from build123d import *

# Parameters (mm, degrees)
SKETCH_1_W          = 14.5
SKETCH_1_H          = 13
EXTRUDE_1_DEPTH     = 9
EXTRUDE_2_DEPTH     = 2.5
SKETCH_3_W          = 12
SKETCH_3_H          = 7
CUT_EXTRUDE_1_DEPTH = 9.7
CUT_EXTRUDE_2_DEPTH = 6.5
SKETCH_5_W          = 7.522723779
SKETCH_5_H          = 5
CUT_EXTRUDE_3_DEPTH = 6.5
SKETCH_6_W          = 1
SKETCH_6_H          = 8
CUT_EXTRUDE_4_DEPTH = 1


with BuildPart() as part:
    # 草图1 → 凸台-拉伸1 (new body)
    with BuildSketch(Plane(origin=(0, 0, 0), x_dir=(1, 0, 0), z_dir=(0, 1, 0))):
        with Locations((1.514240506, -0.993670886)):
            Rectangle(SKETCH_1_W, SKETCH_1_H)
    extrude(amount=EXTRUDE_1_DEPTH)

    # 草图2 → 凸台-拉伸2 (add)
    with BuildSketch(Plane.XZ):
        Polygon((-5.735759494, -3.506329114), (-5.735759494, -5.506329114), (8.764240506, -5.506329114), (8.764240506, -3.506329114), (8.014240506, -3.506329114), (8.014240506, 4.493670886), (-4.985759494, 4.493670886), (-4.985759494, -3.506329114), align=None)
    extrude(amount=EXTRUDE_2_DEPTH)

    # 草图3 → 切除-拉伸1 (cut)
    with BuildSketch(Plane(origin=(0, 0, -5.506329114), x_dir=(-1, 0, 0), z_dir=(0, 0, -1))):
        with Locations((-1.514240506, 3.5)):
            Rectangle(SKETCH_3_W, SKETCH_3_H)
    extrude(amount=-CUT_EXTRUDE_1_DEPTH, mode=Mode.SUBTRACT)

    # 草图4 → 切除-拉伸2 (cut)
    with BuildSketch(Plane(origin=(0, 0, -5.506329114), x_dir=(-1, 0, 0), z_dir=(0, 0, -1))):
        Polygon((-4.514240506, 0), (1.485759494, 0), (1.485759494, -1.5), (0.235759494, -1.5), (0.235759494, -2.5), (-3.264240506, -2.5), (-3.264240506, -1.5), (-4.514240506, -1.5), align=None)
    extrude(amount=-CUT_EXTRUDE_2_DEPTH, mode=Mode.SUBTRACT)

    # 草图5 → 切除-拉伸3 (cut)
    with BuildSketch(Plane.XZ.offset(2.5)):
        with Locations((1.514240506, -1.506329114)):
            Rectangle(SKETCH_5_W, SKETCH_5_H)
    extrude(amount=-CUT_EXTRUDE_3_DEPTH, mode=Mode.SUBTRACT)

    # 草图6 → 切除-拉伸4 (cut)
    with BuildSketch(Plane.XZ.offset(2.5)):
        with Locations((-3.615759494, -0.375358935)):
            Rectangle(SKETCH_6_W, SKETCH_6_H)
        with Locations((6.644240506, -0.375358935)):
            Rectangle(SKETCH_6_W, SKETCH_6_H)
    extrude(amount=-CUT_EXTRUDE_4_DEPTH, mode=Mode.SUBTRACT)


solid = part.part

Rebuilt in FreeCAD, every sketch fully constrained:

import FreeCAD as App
import Part
import Sketcher

V = App.Vector
Q = App.Units.Quantity


def add_polygon(sketch, points):
    """Adds a closed chain of lines whose ends are joined by coincident constraints."""
    first, n = sketch.GeometryCount, len(points)
    for a, b in zip(points, points[1:] + points[:1]):
        sketch.addGeometry(Part.LineSegment(App.Vector(*a, 0), App.Vector(*b, 0)), False)
    for i in range(n):
        sketch.addConstraint(Sketcher.Constraint("Coincident", first + i, 2, first + (i + 1) % n, 1))

doc = App.newDocument("Part")
params = doc.addObject("Spreadsheet::Sheet", "Params")
for row, (alias, value) in enumerate([
    ("sketch1_height", "13 mm"),
    ("sketch1_width", "14.5 mm"),
    ("pad1_length", "9 mm"),
    ("sketch2_width", "13 mm"),
    ("sketch2_height", "2 mm"),
    ("sketch2_height2", "8 mm"),
    ("sketch2_width2", "14.5 mm"),
    ("pad2_length", "2.5 mm"),
    ("sketch3_width", "12 mm"),
    ("sketch3_height", "7 mm"),
    ("pocket1_length", "9.7 mm"),
    ("sketch4_width", "6 mm"),
    ("sketch4_height", "1 mm"),
    ("sketch4_width2", "3.5 mm"),
    ("sketch4_height2", "1.5 mm"),
    ("pocket2_length", "6.5 mm"),
    ("sketch5_height", "5 mm"),
    ("pocket3_length", "6.5 mm"),
    ("sketch6_width", "1 mm"),
    ("sketch6_height", "8 mm"),
    ("pocket4_length", "1 mm"),
], start=1):
    params.set(f"A{row}", alias)
    params.set(f"B{row}", "=" + value)
    params.setAlias(f"B{row}", alias)

body = doc.addObject("PartDesign::Body", "Body")

# Sketch on XZ plane
sketch1 = doc.addObject("Sketcher::SketchObject", "Sketch")
body.addObject(sketch1)
sketch1.AttachmentSupport = (doc.XZ_Plane, [""])
sketch1.MapMode = "FlatFace"
add_polygon(sketch1, [(-6, -6), (-6, 7), (9, 7), (9, -6)])  # lines 0-3
sketch1.addConstraint([
    Sketcher.Constraint("Vertical", 0),
    Sketcher.Constraint("Horizontal", 1),
    Sketcher.Constraint("Vertical", 2),
    Sketcher.Constraint("Horizontal", 3),
    Sketcher.Constraint("DistanceY", 0, 1, 0, 2, Q("13 mm")),
    Sketcher.Constraint("DistanceX", 1, 1, 1, 2, Q("14.5 mm")),
    Sketcher.Constraint("DistanceX", 0, 2, -1, 1, Q("5.735759 mm")),
    Sketcher.Constraint("DistanceY", -1, 1, 0, 2, Q("7.493671 mm")),
])
sketch1.setExpression("Constraints[8]", "Params.sketch1_height")
sketch1.setExpression("Constraints[9]", "Params.sketch1_width")
pad1 = doc.addObject("PartDesign::Pad", "Pad")
body.addObject(pad1)
pad1.Profile = sketch1
pad1.setExpression("Length", "Params.pad1_length")
pad1.Reversed = True

# Sketch on XZ plane
sketch2 = doc.addObject("Sketcher::SketchObject", "Sketch001")
body.addObject(sketch2)
sketch2.AttachmentSupport = (doc.XZ_Plane, [""])
sketch2.MapMode = "FlatFace"
add_polygon(sketch2, [(-5.7, -3.5), (-5.7, -5.5), (8.8, -5.5), (8.8, -3.5), (8, -3.5), (8, 4.5), (-5, 4.5), (-5, -3.5)])  # lines 0-7
sketch2.addConstraint([
    Sketcher.Constraint("Vertical", 0),
    Sketcher.Constraint("Horizontal", 1),
    Sketcher.Constraint("Vertical", 2),
    Sketcher.Constraint("Horizontal", 3),
    Sketcher.Constraint("Vertical", 4),
    Sketcher.Constraint("Horizontal", 5),
    Sketcher.Constraint("Vertical", 6),
    Sketcher.Constraint("Horizontal", 7),
    Sketcher.Constraint("Horizontal", 3, 2, 6, 2),
    Sketcher.Constraint("Equal", 3, 7),
    Sketcher.Constraint("DistanceX", 5, 2, 5, 1, Q("13 mm")),
    Sketcher.Constraint("DistanceY", 0, 2, 0, 1, Q("2 mm")),
    Sketcher.Constraint("DistanceY", 4, 1, 4, 2, Q("8 mm")),
    Sketcher.Constraint("DistanceX", 1, 1, 1, 2, Q("14.5 mm")),
    Sketcher.Constraint("DistanceX", 0, 2, -1, 1, Q("5.735759 mm")),
    Sketcher.Constraint("DistanceY", 0, 2, -1, 1, Q("5.506329 mm")),
])
sketch2.setExpression("Constraints[18]", "Params.sketch2_width")
sketch2.setExpression("Constraints[19]", "Params.sketch2_height")
sketch2.setExpression("Constraints[20]", "Params.sketch2_height2")
sketch2.setExpression("Constraints[21]", "Params.sketch2_width2")
pad2 = doc.addObject("PartDesign::Pad", "Pad001")
body.addObject(pad2)
pad2.Profile = sketch2
pad2.setExpression("Length", "Params.pad2_length")

# Sketch on XY plane
sketch3 = doc.addObject("Sketcher::SketchObject", "Sketch002")
body.addObject(sketch3)
sketch3.AttachmentSupport = (doc.XY_Plane, [""])
sketch3.MapMode = "FlatFace"
sketch3.AttachmentOffset = App.Placement(V(0, 0, -5.506329), App.Rotation())
add_polygon(sketch3, [(8, 7), (8, 0), (-4, 0), (-4, 7)])  # lines 0-3
sketch3.addConstraint([
    Sketcher.Constraint("Vertical", 0),
    Sketcher.Constraint("Horizontal", 1),
    Sketcher.Constraint("Vertical", 2),
    Sketcher.Constraint("Horizontal", 3),
    Sketcher.Constraint("PointOnObject", 0, 2, -1),
    Sketcher.Constraint("DistanceX", 1, 2, 1, 1, Q("12 mm")),
    Sketcher.Constraint("DistanceY", 0, 2, 0, 1, Q("7 mm")),
    Sketcher.Constraint("DistanceX", -1, 1, 0, 2, Q("7.514241 mm")),
])
sketch3.setExpression("Constraints[9]", "Params.sketch3_width")
sketch3.setExpression("Constraints[10]", "Params.sketch3_height")
pocket1 = doc.addObject("PartDesign::Pocket", "Pocket")
body.addObject(pocket1)
pocket1.Profile = sketch3
pocket1.setExpression("Length", "Params.pocket1_length")
pocket1.Reversed = True

# Sketch on XY plane
sketch4 = doc.addObject("Sketcher::SketchObject", "Sketch003")
body.addObject(sketch4)
sketch4.AttachmentSupport = (doc.XY_Plane, [""])
sketch4.MapMode = "FlatFace"
sketch4.AttachmentOffset = App.Placement(V(0, 0, -5.506329), App.Rotation())
add_polygon(sketch4, [(-1.5, 0), (4.5, 0), (4.5, -1.5), (3.3, -1.5), (3.3, -2.5), (-0.2, -2.5), (-0.2, -1.5), (-1.5, -1.5)])  # lines 0-7
sketch4.addConstraint([
    Sketcher.Constraint("Horizontal", 0),
    Sketcher.Constraint("Vertical", 1),
    Sketcher.Constraint("Horizontal", 2),
    Sketcher.Constraint("Vertical", 3),
    Sketcher.Constraint("Horizontal", 4),
    Sketcher.Constraint("Vertical", 5),
    Sketcher.Constraint("Horizontal", 6),
    Sketcher.Constraint("Vertical", 7),
    Sketcher.Constraint("PointOnObject", 0, 2, -1),
    Sketcher.Constraint("Horizontal", 2, 2, 5, 2),
    Sketcher.Constraint("Equal", 2, 6),
    Sketcher.Constraint("DistanceX", 0, 1, 0, 2, Q("6 mm")),
    Sketcher.Constraint("DistanceY", 3, 2, 3, 1, Q("1 mm")),
    Sketcher.Constraint("DistanceX", 4, 2, 4, 1, Q("3.5 mm")),
    Sketcher.Constraint("DistanceY", 1, 2, 1, 1, Q("1.5 mm")),
    Sketcher.Constraint("DistanceX", -1, 1, 0, 2, Q("4.514241 mm")),
])
sketch4.setExpression("Constraints[19]", "Params.sketch4_width")
sketch4.setExpression("Constraints[20]", "Params.sketch4_height")
sketch4.setExpression("Constraints[21]", "Params.sketch4_width2")
sketch4.setExpression("Constraints[22]", "Params.sketch4_height2")
pocket2 = doc.addObject("PartDesign::Pocket", "Pocket001")
body.addObject(pocket2)
pocket2.Profile = sketch4
pocket2.setExpression("Length", "Params.pocket2_length")
pocket2.Reversed = True

# Sketch on XZ plane
sketch5 = doc.addObject("Sketcher::SketchObject", "Sketch004")
body.addObject(sketch5)
sketch5.AttachmentSupport = (doc.XZ_Plane, [""])
sketch5.MapMode = "FlatFace"
sketch5.AttachmentOffset = App.Placement(V(0, 0, 2.5), App.Rotation())
add_polygon(sketch5, [(-2, 1), (-2, -4), (5, -4), (5, 1)])  # lines 0-3
sketch5.addConstraint([
    Sketcher.Constraint("Vertical", 0),
    Sketcher.Constraint("Horizontal", 1),
    Sketcher.Constraint("Vertical", 2),
    Sketcher.Constraint("Horizontal", 3),
    Sketcher.Constraint("DistanceY", 0, 2, 0, 1, Q("5 mm")),
    Sketcher.Constraint("DistanceX", 1, 1, 1, 2, Q("7.522724 mm")),
    Sketcher.Constraint("DistanceX", 0, 2, -1, 1, Q("2.247121 mm")),
    Sketcher.Constraint("DistanceY", 0, 2, -1, 1, Q("4.006329 mm")),
])
sketch5.setExpression("Constraints[8]", "Params.sketch5_height")
pocket3 = doc.addObject("PartDesign::Pocket", "Pocket002")
body.addObject(pocket3)
pocket3.Profile = sketch5
pocket3.setExpression("Length", "Params.pocket3_length")

# Sketch on XZ plane
sketch6 = doc.addObject("Sketcher::SketchObject", "Sketch005")
body.addObject(sketch6)
sketch6.AttachmentSupport = (doc.XZ_Plane, [""])
sketch6.MapMode = "FlatFace"
sketch6.AttachmentOffset = App.Placement(V(0, 0, 2.5), App.Rotation())
add_polygon(sketch6, [(-4.1, 3.6), (-4.1, -4.4), (-3.1, -4.4), (-3.1, 3.6)])  # lines 0-3
add_polygon(sketch6, [(6.1, 3.6), (6.1, -4.4), (7.1, -4.4), (7.1, 3.6)])  # lines 4-7
sketch6.addConstraint([
    Sketcher.Constraint("Vertical", 0),
    Sketcher.Constraint("Horizontal", 1),
    Sketcher.Constraint("Vertical", 2),
    Sketcher.Constraint("Horizontal", 3),
    Sketcher.Constraint("Vertical", 4),
    Sketcher.Constraint("Horizontal", 5),
    Sketcher.Constraint("Vertical", 6),
    Sketcher.Constraint("Horizontal", 7),
    Sketcher.Constraint("Horizontal", 1, 2, 4, 2),
    Sketcher.Constraint("Horizontal", 3, 2, 6, 2),
    Sketcher.Constraint("Equal", 3, 5),
    Sketcher.Constraint("DistanceX", 1, 1, 1, 2, Q("1 mm")),
    Sketcher.Constraint("DistanceY", 0, 2, 0, 1, Q("8 mm")),
    Sketcher.Constraint("DistanceX", 1, 2, 4, 2, Q("9.26 mm")),
    Sketcher.Constraint("DistanceX", 0, 2, -1, 1, Q("4.115759 mm")),
    Sketcher.Constraint("DistanceY", 0, 2, -1, 1, Q("4.375359 mm")),
])
sketch6.setExpression("Constraints[19]", "Params.sketch6_width")
sketch6.setExpression("Constraints[20]", "Params.sketch6_height")
pocket4 = doc.addObject("PartDesign::Pocket", "Pocket003")
body.addObject(pocket4)
pocket4.Profile = sketch6
pocket4.setExpression("Length", "Params.pocket4_length")

doc.recompute()
